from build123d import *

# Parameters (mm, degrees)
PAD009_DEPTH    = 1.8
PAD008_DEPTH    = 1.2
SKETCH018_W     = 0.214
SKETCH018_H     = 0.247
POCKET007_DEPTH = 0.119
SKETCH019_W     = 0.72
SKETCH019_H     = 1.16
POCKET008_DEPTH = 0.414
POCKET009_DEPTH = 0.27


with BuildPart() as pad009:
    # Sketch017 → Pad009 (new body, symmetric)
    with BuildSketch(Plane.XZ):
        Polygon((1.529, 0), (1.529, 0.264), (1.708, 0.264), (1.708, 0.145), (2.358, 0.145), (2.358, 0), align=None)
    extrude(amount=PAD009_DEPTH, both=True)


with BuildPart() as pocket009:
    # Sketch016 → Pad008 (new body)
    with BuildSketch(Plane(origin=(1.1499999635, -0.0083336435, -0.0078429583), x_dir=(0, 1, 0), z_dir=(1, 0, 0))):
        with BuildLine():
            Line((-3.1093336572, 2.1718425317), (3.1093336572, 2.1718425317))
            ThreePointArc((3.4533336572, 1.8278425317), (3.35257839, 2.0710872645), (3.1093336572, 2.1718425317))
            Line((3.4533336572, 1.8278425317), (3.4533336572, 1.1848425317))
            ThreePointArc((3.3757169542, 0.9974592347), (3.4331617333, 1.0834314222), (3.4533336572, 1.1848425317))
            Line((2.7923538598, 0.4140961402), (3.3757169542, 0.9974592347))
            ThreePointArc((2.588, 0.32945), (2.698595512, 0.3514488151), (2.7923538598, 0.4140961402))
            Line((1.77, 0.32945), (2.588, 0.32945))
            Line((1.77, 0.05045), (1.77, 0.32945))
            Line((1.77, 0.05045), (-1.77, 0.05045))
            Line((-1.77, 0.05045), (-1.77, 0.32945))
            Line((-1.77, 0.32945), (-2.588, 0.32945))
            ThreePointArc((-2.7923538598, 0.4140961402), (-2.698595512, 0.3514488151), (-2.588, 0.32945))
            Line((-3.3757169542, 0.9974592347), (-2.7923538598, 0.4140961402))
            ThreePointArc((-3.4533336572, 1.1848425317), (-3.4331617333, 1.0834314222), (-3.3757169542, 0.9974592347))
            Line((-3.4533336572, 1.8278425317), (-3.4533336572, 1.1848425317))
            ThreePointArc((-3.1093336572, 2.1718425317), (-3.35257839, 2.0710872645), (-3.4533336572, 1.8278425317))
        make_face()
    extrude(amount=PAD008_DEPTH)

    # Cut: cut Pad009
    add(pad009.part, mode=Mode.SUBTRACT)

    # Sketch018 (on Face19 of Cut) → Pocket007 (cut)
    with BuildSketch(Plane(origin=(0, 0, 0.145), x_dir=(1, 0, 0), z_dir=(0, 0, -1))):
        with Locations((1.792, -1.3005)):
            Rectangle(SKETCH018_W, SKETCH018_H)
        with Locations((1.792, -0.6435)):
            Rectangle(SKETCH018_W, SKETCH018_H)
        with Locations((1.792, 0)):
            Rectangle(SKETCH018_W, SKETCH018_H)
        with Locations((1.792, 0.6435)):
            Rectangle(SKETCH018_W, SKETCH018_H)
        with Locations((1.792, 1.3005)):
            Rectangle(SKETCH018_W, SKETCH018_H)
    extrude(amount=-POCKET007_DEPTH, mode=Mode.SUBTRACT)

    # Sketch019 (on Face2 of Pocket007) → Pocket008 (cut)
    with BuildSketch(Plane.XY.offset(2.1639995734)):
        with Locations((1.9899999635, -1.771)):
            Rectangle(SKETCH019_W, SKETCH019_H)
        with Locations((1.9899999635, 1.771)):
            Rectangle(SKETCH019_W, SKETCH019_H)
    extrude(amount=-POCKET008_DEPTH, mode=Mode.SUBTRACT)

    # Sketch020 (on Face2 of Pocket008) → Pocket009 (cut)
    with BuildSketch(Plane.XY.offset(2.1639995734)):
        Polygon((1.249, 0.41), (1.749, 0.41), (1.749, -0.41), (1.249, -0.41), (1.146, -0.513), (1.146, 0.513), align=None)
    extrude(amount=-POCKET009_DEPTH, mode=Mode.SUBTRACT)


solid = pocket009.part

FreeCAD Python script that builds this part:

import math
import FreeCAD as App
import Part
import Sketcher
from FreeCAD import Vector
Q = App.Units.Quantity

doc = App.newDocument("Part")
body = doc.addObject("PartDesign::Body", "Body")

# Sketch on XZ plane
sketch1 = body.newObject("Sketcher::SketchObject", "Sketch")
sketch1.AttachmentSupport = (doc.getObject("XZ_Plane"), [""])
sketch1.MapMode = "FlatFace"
sketch1.addGeometry([
    Part.LineSegment(Vector(1.53, 0.26, 0), Vector(1.53, 0, 0)),  # 0
    Part.LineSegment(Vector(1.53, 0, 0), Vector(2.36, 0, 0)),  # 1
    Part.LineSegment(Vector(2.36, 0, 0), Vector(2.36, 0.14, 0)),  # 2
    Part.LineSegment(Vector(2.36, 0.14, 0), Vector(1.71, 0.14, 0)),  # 3
    Part.LineSegment(Vector(1.71, 0.14, 0), Vector(1.71, 0.26, 0)),  # 4
    Part.LineSegment(Vector(1.71, 0.26, 0), Vector(1.53, 0.26, 0)),  # 5
], False)
sketch1.addConstraint([
    Sketcher.Constraint("Coincident", 0, 2, 1, 1),
    Sketcher.Constraint("Coincident", 1, 2, 2, 1),
    Sketcher.Constraint("Coincident", 2, 2, 3, 1),
    Sketcher.Constraint("Coincident", 3, 2, 4, 1),
    Sketcher.Constraint("Coincident", 4, 2, 5, 1),
    Sketcher.Constraint("Coincident", 5, 2, 0, 1),
    Sketcher.Constraint("Vertical", 0),
    Sketcher.Constraint("Horizontal", 1),
    Sketcher.Constraint("Vertical", 2),
    Sketcher.Constraint("Horizontal", 3),
    Sketcher.Constraint("Vertical", 4),
    Sketcher.Constraint("Horizontal", 5),
    Sketcher.Constraint("PointOnObject", 0, 2, -1),
    Sketcher.Constraint("DistanceX", 3, 2, 3, 1, Q("0.65 mm")),
    Sketcher.Constraint("DistanceX", 1, 1, 1, 2, Q("0.829 mm")),
    Sketcher.Constraint("DistanceY", 0, 2, 0, 1, Q("0.264 mm")),
    Sketcher.Constraint("DistanceY", 2, 1, 2, 2, Q("0.145 mm")),
    Sketcher.Constraint("DistanceX", -1, 1, 0, 2, Q("1.529 mm")),
])
pad1 = body.newObject("PartDesign::Pad", "Pad")
pad1.Profile = sketch1
pad1.Length = 3.6
pad1.Midplane = True
body2 = doc.addObject("PartDesign::Body", "Body001")

# Sketch on YZ plane
sketch2 = body2.newObject("Sketcher::SketchObject", "Sketch001")
sketch2.AttachmentSupport = (doc.getObject("YZ_Plane001"), [""])
sketch2.MapMode = "FlatFace"
sketch2.AttachmentOffset = App.Placement(Vector(0, 0, 1.15), App.Rotation())
sketch2.addGeometry([
    Part.LineSegment(Vector(3.1, 2.16, 0), Vector(-3.12, 2.16, 0)),  # 0
    Part.ArcOfCircle(Part.Circle(Vector(-3.12, 1.82, 0), Vector(0, 0, 1), 0.34), math.radians(90), math.radians(180)),  # 1
    Part.LineSegment(Vector(-3.46, 1.82, 0), Vector(-3.46, 1.18, 0)),  # 2
    Part.ArcOfCircle(Part.Circle(Vector(-3.2, 1.18, 0), Vector(0, 0, 1), 0.27), math.radians(180), math.radians(225)),  # 3
    Part.LineSegment(Vector(-3.38, 0.99, 0), Vector(-2.8, 0.41, 0)),  # 4
    Part.ArcOfCircle(Part.Circle(Vector(-2.6, 0.61, 0), Vector(0, 0, 1), 0.29), math.radians(-135), math.radians(-90)),  # 5
    Part.LineSegment(Vector(-2.6, 0.32, 0), Vector(-1.78, 0.32, 0)),  # 6
    Part.LineSegment(Vector(-1.78, 0.32, 0), Vector(-1.78, 0.04, 0)),  # 7
    Part.LineSegment(Vector(-1.78, 0.04, 0), Vector(1.76, 0.04, 0)),  # 8
    Part.LineSegment(Vector(1.76, 0.04, 0), Vector(1.76, 0.32, 0)),  # 9
    Part.LineSegment(Vector(1.76, 0.32, 0), Vector(2.58, 0.32, 0)),  # 10
    Part.ArcOfCircle(Part.Circle(Vector(2.58, 0.61, 0), Vector(0, 0, 1), 0.29), math.radians(-90), math.radians(-45)),  # 11
    Part.LineSegment(Vector(2.78, 0.41, 0), Vector(3.37, 0.99, 0)),  # 12
    Part.ArcOfCircle(Part.Circle(Vector(3.18, 1.18, 0), Vector(0, 0, 1), 0.27), math.radians(-45), math.radians(0)),  # 13
    Part.LineSegment(Vector(3.45, 1.18, 0), Vector(3.45, 1.82, 0)),  # 14
    Part.ArcOfCircle(Part.Circle(Vector(3.1, 1.82, 0), Vector(0, 0, 1), 0.34), math.radians(0), math.radians(90)),  # 15
], False)
sketch2.addConstraint([
    Sketcher.Constraint("Tangent", 0, 2, 1, 1),
    Sketcher.Constraint("Tangent", 1, 2, 2, 1),
    Sketcher.Constraint("Tangent", 2, 2, 3, 1),
    Sketcher.Constraint("Tangent", 3, 2, 4, 1),
    Sketcher.Constraint("Tangent", 4, 2, 5, 1),
    Sketcher.Constraint("Tangent", 5, 2, 6, 1),
    Sketcher.Constraint("Coincident", 6, 2, 7, 1),
    Sketcher.Constraint("Coincident", 7, 2, 8, 1),
    Sketcher.Constraint("Coincident", 8, 2, 9, 1),
    Sketcher.Constraint("Coincident", 9, 2, 10, 1),
    Sketcher.Constraint("Tangent", 10, 2, 11, 1),
    Sketcher.Constraint("Tangent", 11, 2, 12, 1),
    Sketcher.Constraint("Tangent", 12, 2, 13, 1),
    Sketcher.Constraint("Tangent", 13, 2, 14, 1),
    Sketcher.Constraint("Tangent", 14, 2, 15, 1),
    Sketcher.Constraint("Tangent", 15, 2, 0, 1),
    Sketcher.Constraint("Horizontal", 0),
    Sketcher.Constraint("Vertical", 2),
    Sketcher.Constraint("Horizontal", 6),
    Sketcher.Constraint("Vertical", 7),
    Sketcher.Constraint("Horizontal", 8),
    Sketcher.Constraint("Vertical", 9),
    Sketcher.Constraint("Horizontal", 10),
    Sketcher.Constraint("Vertical", 14),
    Sketcher.Constraint("Equal", 5, 11),
    Sketcher.Constraint("Equal", 3, 13),
    Sketcher.Constraint("Equal", 1, 15),
    Sketcher.Constraint("Perpendicular", 4, 12),
    Sketcher.Constraint("Horizontal", 5, 3, 11, 3),
    Sketcher.Constraint("Horizontal", 3, 3, 13, 3),
    Sketcher.Constraint("Horizontal", 4, 2, 11, 2),
    Sketcher.Constraint("Equal", 6, 10),
    Sketcher.Constraint("Radius", 1, Q("0.344 mm")),
    Sketcher.Constraint("Radius", 3, Q("0.265 mm")),
    Sketcher.Constraint("Radius", 5, Q("0.289 mm")),
    Sketcher.Constraint("DistanceX", 8, 1, 8, 2, Q("3.54 mm")),
    Sketcher.Constraint("DistanceX", 6, 1, 6, 2, Q("0.818 mm")),
    Sketcher.Constraint("DistanceY", 2, 2, 2, 1, Q("0.643 mm")),
    Sketcher.Constraint("DistanceY", 7, 2, 7, 1, Q("0.279 mm")),
    Sketcher.Constraint("DistanceY", -1, 1, 1, 3, Q("1.82 mm")),
    Sketcher.Constraint("DistanceX", -1, 1, 13, 3, Q("3.18 mm")),
    Sketcher.Constraint("Distance", 4, Q("0.825 mm")),
])
pad2 = body2.newObject("PartDesign::Pad", "Pad001")
pad2.Profile = sketch2
pad2.Length = 1.2
doc.recompute()

boolean = body2.newObject("PartDesign::Boolean", "Boolean")
boolean.Type = "Cut"
boolean.addObjects([body])

# Sketch on XY plane
sketch3 = body2.newObject("Sketcher::SketchObject", "Sketch002")
sketch3.AttachmentSupport = (doc.getObject("XY_Plane001"), [""])
sketch3.MapMode = "FlatFace"
sketch3.AttachmentOffset = App.Placement(Vector(0, 0, 0.145), App.Rotation())
sketch3.addGeometry([
    Part.LineSegment(Vector(1.69, 1.18, 0), Vector(1.69, 1.42, 0)),  # 0
    Part.LineSegment(Vector(1.69, 1.42, 0), Vector(1.9, 1.42, 0)),  # 1
    Part.LineSegment(Vector(1.9, 1.42, 0), Vector(1.9, 1.18, 0)),  # 2
    Part.LineSegment(Vector(1.9, 1.18, 0), Vector(1.69, 1.18, 0)),  # 3
    Part.LineSegment(Vector(1.69, 0.52, 0), Vector(1.69, 0.77, 0)),  # 4
    Part.LineSegment(Vector(1.69, 0.77, 0), Vector(1.9, 0.77, 0)),  # 5
    Part.LineSegment(Vector(1.9, 0.77, 0), Vector(1.9, 0.52, 0)),  # 6
    Part.LineSegment(Vector(1.9, 0.52, 0), Vector(1.69, 0.52, 0)),  # 7
    Part.LineSegment(Vector(1.69, -0.12, 0), Vector(1.69, 0.12, 0)),  # 8
    Part.LineSegment(Vector(1.69, 0.12, 0), Vector(1.9, 0.12, 0)),  # 9
    Part.LineSegment(Vector(1.9, 0.12, 0), Vector(1.9, -0.12, 0)),  # 10
    Part.LineSegment(Vector(1.9, -0.12, 0), Vector(1.69, -0.12, 0)),  # 11
    Part.LineSegment(Vector(1.69, -0.77, 0), Vector(1.69, -0.52, 0)),  # 12
    Part.LineSegment(Vector(1.69, -0.52, 0), Vector(1.9, -0.52, 0)),  # 13
    Part.LineSegment(Vector(1.9, -0.52, 0), Vector(1.9, -0.77, 0)),  # 14
    Part.LineSegment(Vector(1.9, -0.77, 0), Vector(1.69, -0.77, 0)),  # 15
    Part.LineSegment(Vector(1.69, -1.42, 0), Vector(1.69, -1.18, 0)),  # 16
    Part.LineSegment(Vector(1.69, -1.18, 0), Vector(1.9, -1.18, 0)),  # 17
    Part.LineSegment(Vector(1.9, -1.18, 0), Vector(1.9, -1.42, 0)),  # 18
    Part.LineSegment(Vector(1.9, -1.42, 0), Vector(1.69, -1.42, 0)),  # 19
], False)
sketch3.addConstraint([
    Sketcher.Constraint("Coincident", 0, 2, 1, 1),
    Sketcher.Constraint("Coincident", 1, 2, 2, 1),
    Sketcher.Constraint("Coincident", 2, 2, 3, 1),
    Sketcher.Constraint("Coincident", 3, 2, 0, 1),
    Sketcher.Constraint("Coincident", 4, 2, 5, 1),
    Sketcher.Constraint("Coincident", 5, 2, 6, 1),
    Sketcher.Constraint("Coincident", 6, 2, 7, 1),
    Sketcher.Constraint("Coincident", 7, 2, 4, 1),
    Sketcher.Constraint("Coincident", 8, 2, 9, 1),
    Sketcher.Constraint("Coincident", 9, 2, 10, 1),
    Sketcher.Constraint("Coincident", 10, 2, 11, 1),
    Sketcher.Constraint("Coincident", 11, 2, 8, 1),
    Sketcher.Constraint("Coincident", 12, 2, 13, 1),
    Sketcher.Constraint("Coincident", 13, 2, 14, 1),
    Sketcher.Constraint("Coincident", 14, 2, 15, 1),
    Sketcher.Constraint("Coincident", 15, 2, 12, 1),
    Sketcher.Constraint("Coincident", 16, 2, 17, 1),
    Sketcher.Constraint("Coincident", 17, 2, 18, 1),
    Sketcher.Constraint("Coincident", 18, 2, 19, 1),
    Sketcher.Constraint("Coincident", 19, 2, 16, 1),
    Sketcher.Constraint("Vertical", 0),
    Sketcher.Constraint("Horizontal", 1),
    Sketcher.Constraint("Vertical", 2),
    Sketcher.Constraint("Horizontal", 3),
    Sketcher.Constraint("Vertical", 4),
    Sketcher.Constraint("Horizontal", 5),
    Sketcher.Constraint("Vertical", 6),
    Sketcher.Constraint("Horizontal", 7),
    Sketcher.Constraint("Vertical", 8),
    Sketcher.Constraint("Horizontal", 9),
    Sketcher.Constraint("Vertical", 10),
    Sketcher.Constraint("Horizontal", 11),
    Sketcher.Constraint("Vertical", 12),
    Sketcher.Constraint("Horizontal", 13),
    Sketcher.Constraint("Vertical", 14),
    Sketcher.Constraint("Horizontal", 15),
    Sketcher.Constraint("Vertical", 16),
    Sketcher.Constraint("Horizontal", 17),
    Sketcher.Constraint("Vertical", 18),
    Sketcher.Constraint("Horizontal", 19),
    Sketcher.Constraint("Symmetric", 7, 2, 12, 2, -1),
    Sketcher.Constraint("Symmetric", 5, 2, 14, 2, -1),
    Sketcher.Constraint("Symmetric", 3, 2, 16, 2, -1),
    Sketcher.Constraint("Symmetric", 1, 2, 18, 2, -1),
    Sketcher.Constraint("Vertical", 3, 2, 4, 2),
    Sketcher.Constraint("Vertical", 2, 2, 5, 2),
    Sketcher.Constraint("Vertical", 7, 2, 8, 2),
    Sketcher.Constraint("Vertical", 6, 2, 9, 2),
    Sketcher.Constraint("Equal", 2, 4),
    Sketcher.Constraint("Equal", 6, 8),
    Sketcher.Constraint("DistanceX", 1, 1, 1, 2, Q("0.214 mm")),
    Sketcher.Constraint("DistanceY", 0, 1, 0, 2, Q("0.247 mm")),
    Sketcher.Constraint("DistanceY", -1, 1, 6, 2, Q("0.52 mm")),
    Sketcher.Constraint("DistanceY", 4, 2, 3, 2, Q("0.41 mm")),
    Sketcher.Constraint("DistanceX", -1, 1, 0, 2, Q("1.685 mm")),
    Sketcher.Constraint("DistanceY", -1, 1, 8, 2, Q("0.1235 mm")),
])
pocket1 = body2.newObject("PartDesign::Pocket", "Pocket")
pocket1.Profile = sketch3
pocket1.Length = 0.119
pocket1.Reversed = True

# Sketch on XY plane
sketch4 = body2.newObject("Sketcher::SketchObject", "Sketch003")
sketch4.AttachmentSupport = (doc.getObject("XY_Plane001"), [""])
sketch4.MapMode = "FlatFace"
sketch4.AttachmentOffset = App.Placement(Vector(0, 0, 2.164), App.Rotation())
sketch4.addGeometry([
    Part.LineSegment(Vector(1.6, -1.2, 0), Vector(1.6, -2.4, 0)),  # 0
    Part.LineSegment(Vector(1.6, -2.4, 0), Vector(2.3, -2.4, 0)),  # 1
    Part.LineSegment(Vector(2.3, -2.4, 0), Vector(2.3, -1.2, 0)),  # 2
    Part.LineSegment(Vector(2.3, -1.2, 0), Vector(1.6, -1.2, 0)),  # 3
    Part.LineSegment(Vector(1.6, 2.4, 0), Vector(1.6, 1.2, 0)),  # 4
    Part.LineSegment(Vector(1.6, 1.2, 0), Vector(2.3, 1.2, 0)),  # 5
    Part.LineSegment(Vector(2.3, 1.2, 0), Vector(2.3, 2.4, 0)),  # 6
    Part.LineSegment(Vector(2.3, 2.4, 0), Vector(1.6, 2.4, 0)),  # 7
], False)
sketch4.addConstraint([
    Sketcher.Constraint("Coincident", 0, 2, 1, 1),
    Sketcher.Constraint("Coincident", 1, 2, 2, 1),
    Sketcher.Constraint("Coincident", 2, 2, 3, 1),
    Sketcher.Constraint("Coincident", 3, 2, 0, 1),
    Sketcher.Constraint("Coincident", 4, 2, 5, 1),
    Sketcher.Constraint("Coincident", 5, 2, 6, 1),
    Sketcher.Constraint("Coincident", 6, 2, 7, 1),
    Sketcher.Constraint("Coincident", 7, 2, 4, 1),
    Sketcher.Constraint("Vertical", 0),
    Sketcher.Constraint("Horizontal", 1),
    Sketcher.Constraint("Vertical", 2),
    Sketcher.Constraint("Horizontal", 3),
    Sketcher.Constraint("Vertical", 4),
    Sketcher.Constraint("Horizontal", 5),
    Sketcher.Constraint("Vertical", 6),
    Sketcher.Constraint("Horizontal", 7),
    Sketcher.Constraint("Symmetric", 3, 2, 4, 2, -1),
    Sketcher.Constraint("Symmetric", 1, 2, 6, 2, -1),
    Sketcher.Constraint("DistanceX", 1, 1, 1, 2, Q("0.72 mm")),
    Sketcher.Constraint("DistanceY", 0, 2, 0, 1, Q("1.16 mm")),
    Sketcher.Constraint("DistanceX", -1, 1, 0, 2, Q("1.63 mm")),
    Sketcher.Constraint("DistanceY", 0, 2, -1, 1, Q("2.351 mm")),
])
pocket2 = body2.newObject("PartDesign::Pocket", "Pocket001")
pocket2.Profile = sketch4
pocket2.Length = 0.414

# Sketch on XY plane
sketch5 = body2.newObject("Sketcher::SketchObject", "Sketch004")
sketch5.AttachmentSupport = (doc.getObject("XY_Plane001"), [""])
sketch5.MapMode = "FlatFace"
sketch5.AttachmentOffset = App.Placement(Vector(0, 0, 2.164), App.Rotation())
sketch5.addGeometry([
    Part.LineSegment(Vector(1.75, 0.41, 0), Vector(1.25, 0.41, 0)),  # 0
    Part.LineSegment(Vector(1.25, 0.41, 0), Vector(1.15, 0.51, 0)),  # 1
    Part.LineSegment(Vector(1.15, 0.51, 0), Vector(1.15, -0.51, 0)),  # 2
    Part.LineSegment(Vector(1.15, -0.51, 0), Vector(1.25, -0.41, 0)),  # 3
    Part.LineSegment(Vector(1.25, -0.41, 0), Vector(1.75, -0.41, 0)),  # 4
    Part.LineSegment(Vector(1.75, -0.41, 0), Vector(1.75, 0.41, 0)),  # 5
], False)
sketch5.addConstraint([
    Sketcher.Constraint("Coincident", 0, 2, 1, 1),
    Sketcher.Constraint("Coincident", 1, 2, 2, 1),
    Sketcher.Constraint("Coincident", 2, 2, 3, 1),
    Sketcher.Constraint("Coincident", 3, 2, 4, 1),
    Sketcher.Constraint("Coincident", 4, 2, 5, 1),
    Sketcher.Constraint("Coincident", 5, 2, 0, 1),
    Sketcher.Constraint("Horizontal", 0),
    Sketcher.Constraint("Vertical", 2),
    Sketcher.Constraint("Horizontal", 4),
    Sketcher.Constraint("Vertical", 5),
    Sketcher.Constraint("Symmetric", 0, 2, 3, 2, -1),
    Sketcher.Constraint("Perpendicular", 1, 3),
    Sketcher.Constraint("Equal", 1, 3),
    Sketcher.Constraint("DistanceX", 0, 2, 0, 1, Q("0.5 mm")),
    Sketcher.Constraint("DistanceY", 5, 1, 5, 2, Q("0.82 mm")),
    Sketcher.Constraint("DistanceY", 2, 2, 2, 1, Q("1.026 mm")),
    Sketcher.Constraint("DistanceX", -1, 1, 0, 2, Q("1.249 mm")),
])
pocket3 = body2.newObject("PartDesign::Pocket", "Pocket002")
pocket3.Profile = sketch5
pocket3.Length = 0.27

doc.recompute()
